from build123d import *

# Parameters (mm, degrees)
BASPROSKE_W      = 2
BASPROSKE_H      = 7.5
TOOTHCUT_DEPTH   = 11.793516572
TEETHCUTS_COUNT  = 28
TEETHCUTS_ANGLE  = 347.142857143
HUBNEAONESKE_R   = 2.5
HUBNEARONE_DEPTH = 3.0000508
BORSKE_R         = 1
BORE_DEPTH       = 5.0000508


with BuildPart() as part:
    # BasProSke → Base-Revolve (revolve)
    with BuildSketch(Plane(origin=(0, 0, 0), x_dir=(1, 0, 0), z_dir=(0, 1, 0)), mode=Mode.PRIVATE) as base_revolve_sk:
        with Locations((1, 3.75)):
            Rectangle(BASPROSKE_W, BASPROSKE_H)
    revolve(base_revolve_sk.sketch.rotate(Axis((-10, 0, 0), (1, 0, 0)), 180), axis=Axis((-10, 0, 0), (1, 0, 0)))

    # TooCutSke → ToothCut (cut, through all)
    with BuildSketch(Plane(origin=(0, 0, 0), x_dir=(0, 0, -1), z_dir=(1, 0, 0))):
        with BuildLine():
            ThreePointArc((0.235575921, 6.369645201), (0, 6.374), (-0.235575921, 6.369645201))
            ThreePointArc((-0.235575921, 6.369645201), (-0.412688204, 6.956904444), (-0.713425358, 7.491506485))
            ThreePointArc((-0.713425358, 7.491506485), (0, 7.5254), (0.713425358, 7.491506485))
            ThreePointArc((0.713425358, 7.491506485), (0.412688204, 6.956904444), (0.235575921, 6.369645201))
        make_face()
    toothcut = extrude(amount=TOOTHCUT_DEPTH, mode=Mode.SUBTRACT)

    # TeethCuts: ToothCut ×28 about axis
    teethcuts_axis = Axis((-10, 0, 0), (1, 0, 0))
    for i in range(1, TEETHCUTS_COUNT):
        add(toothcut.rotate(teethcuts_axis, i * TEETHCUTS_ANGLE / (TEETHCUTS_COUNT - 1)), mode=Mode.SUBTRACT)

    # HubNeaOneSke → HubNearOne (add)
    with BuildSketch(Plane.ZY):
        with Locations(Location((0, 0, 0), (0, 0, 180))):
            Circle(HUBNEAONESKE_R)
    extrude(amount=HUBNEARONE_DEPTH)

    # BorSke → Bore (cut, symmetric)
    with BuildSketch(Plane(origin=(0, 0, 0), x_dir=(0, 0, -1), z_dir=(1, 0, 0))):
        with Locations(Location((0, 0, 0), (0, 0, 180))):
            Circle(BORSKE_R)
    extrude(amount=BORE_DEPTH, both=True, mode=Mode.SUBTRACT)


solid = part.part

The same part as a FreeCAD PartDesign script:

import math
import FreeCAD as App
import Part
import Sketcher
Q = App.Units.Quantity


def add_polygon(sketch, points):
    """Adds a closed chain of lines whose ends are joined by coincident constraints."""
    first, n = sketch.GeometryCount, len(points)
    for a, b in zip(points, points[1:] + points[:1]):
        sketch.addGeometry(Part.LineSegment(App.Vector(*a, 0), App.Vector(*b, 0)), False)
    for i in range(n):
        sketch.addConstraint(Sketcher.Constraint("Coincident", first + i, 2, first + (i + 1) % n, 1))

doc = App.newDocument("Part")
params = doc.addObject("Spreadsheet::Sheet", "Params")
for row, (alias, value) in enumerate([
    ("sketch1_width", "2 mm"),
    ("sketch1_height", "7.5 mm"),
    ("revolution_angle", "360 deg"),
    ("sketch2_radius", "2.8 mm"),
    ("sketch3_diameter", "5 mm"),
    ("pad1_length", "3.000051 mm"),
    ("sketch4_diameter", "2 mm"),
    ("pocket2_length", "10.000102 mm"),
], start=1):
    params.set(f"A{row}", alias)
    params.set(f"B{row}", "=" + value)
    params.setAlias(f"B{row}", alias)

body = doc.addObject("PartDesign::Body", "Body")

# Sketch on XZ plane
sketch1 = body.newObject("Sketcher::SketchObject", "Sketch")
sketch1.AttachmentSupport = (doc.getObject("XZ_Plane"), [""])
sketch1.MapMode = "FlatFace"
add_polygon(sketch1, [(0, -7.5), (0, 0), (2, 0), (2, -7.5)])  # lines 0-3
sketch1.addConstraint([
    Sketcher.Constraint("Vertical", 0),
    Sketcher.Constraint("Horizontal", 1),
    Sketcher.Constraint("Vertical", 2),
    Sketcher.Constraint("Horizontal", 3),
    Sketcher.Constraint("Coincident", 0, 2, -1, 1),
    Sketcher.Constraint("DistanceX", 1, 1, 1, 2, Q("2 mm")),
    Sketcher.Constraint("DistanceY", 0, 1, 0, 2, Q("7.5 mm")),
])
sketch1.setExpression("Constraints[9]", "Params.sketch1_width")
sketch1.setExpression("Constraints[10]", "Params.sketch1_height")
revolution = body.newObject("PartDesign::Revolution", "Revolution")
revolution.Profile = sketch1
revolution.ReferenceAxis = (sketch1, ["H_Axis"])
revolution.setExpression("Angle", "Params.revolution_angle")

# Sketch on YZ plane
sketch2 = body.newObject("Sketcher::SketchObject", "Sketch001")
sketch2.AttachmentSupport = (doc.getObject("YZ_Plane"), [""])
sketch2.MapMode = "FlatFace"
sketch2.addGeometry([
    Part.ArcOfCircle(Part.Circle(App.Vector(0, 0, 0), App.Vector(0, 0, 1), 6.37), math.radians(-2.12), math.radians(2.12)),
    Part.ArcOfCircle(Part.Circle(App.Vector(5.86, -2.99, 0), App.Vector(0, 0, 1), 2.8), math.radians(54), math.radians(80)),
    Part.ArcOfCircle(Part.Circle(App.Vector(0, 0, 0), App.Vector(0, 0, 1), 7.53), math.radians(-5.44), math.radians(5.44)),
    Part.ArcOfCircle(Part.Circle(App.Vector(5.86, 2.99, 0), App.Vector(0, 0, 1), 2.8), math.radians(-80), math.radians(-54)),
], False)
sketch2.addConstraint([
    Sketcher.Constraint("Coincident", 0, 1, 1, 2),
    Sketcher.Constraint("Coincident", 1, 1, 2, 1),
    Sketcher.Constraint("Coincident", 2, 2, 3, 2),
    Sketcher.Constraint("Coincident", 3, 1, 0, 2),
    Sketcher.Constraint("Coincident", 0, 3, -1, 1),
    Sketcher.Constraint("Coincident", 2, 3, -1, 1),
    Sketcher.Constraint("Equal", 1, 3),
    Sketcher.Constraint("Symmetric", 1, 3, 3, 3, -1),
    Sketcher.Constraint("Radius", 1, Q("2.8 mm")),
    Sketcher.Constraint("Radius", 0, Q("6.374 mm")),
    Sketcher.Constraint("Radius", 2, Q("7.5254 mm")),
    Sketcher.Constraint("DistanceY", 0, 1, 2, 2, Q("0.949001 mm")),
    Sketcher.Constraint("DistanceY", 1, 3, -1, 1, Q("2.988739 mm")),
])
sketch2.setExpression("Constraints[8]", "Params.sketch2_radius")
pocket1 = body.newObject("PartDesign::Pocket", "Pocket")
pocket1.Profile = sketch2
pocket1.Type = "ThroughAll"
pocket1.Reversed = True
doc.recompute()

polarpattern = body.newObject("PartDesign::PolarPattern", "PolarPattern")
polarpattern.Originals = [pocket1]
polarpattern.Axis = (doc.getObject("X_Axis"), [""])
polarpattern.Angle = 360
polarpattern.Occurrences = 28
body.Tip = polarpattern

# Sketch on YZ plane
sketch3 = body.newObject("Sketcher::SketchObject", "Sketch002")
sketch3.AttachmentSupport = (doc.getObject("YZ_Plane"), [""])
sketch3.MapMode = "FlatFace"
sketch3.addGeometry(Part.Circle(App.Vector(0, 0, 0), App.Vector(0, 0, 1), 2.5), False)
sketch3.addConstraint([
    Sketcher.Constraint("Coincident", 0, 3, -1, 1),
    Sketcher.Constraint("Diameter", 0, Q("5 mm")),
])
sketch3.setExpression("Constraints[1]", "Params.sketch3_diameter")
pad1 = body.newObject("PartDesign::Pad", "Pad")
pad1.Profile = sketch3
pad1.setExpression("Length", "Params.pad1_length")
pad1.Reversed = True

# Sketch on YZ plane
sketch4 = body.newObject("Sketcher::SketchObject", "Sketch003")
sketch4.AttachmentSupport = (doc.getObject("YZ_Plane"), [""])
sketch4.MapMode = "FlatFace"
sketch4.addGeometry(Part.Circle(App.Vector(0, 0, 0), App.Vector(0, 0, 1), 1), False)
sketch4.addConstraint([
    Sketcher.Constraint("Coincident", 0, 3, -1, 1),
    Sketcher.Constraint("Diameter", 0, Q("2 mm")),
])
sketch4.setExpression("Constraints[1]", "Params.sketch4_diameter")
pocket2 = body.newObject("PartDesign::Pocket", "Pocket001")
pocket2.Profile = sketch4
pocket2.setExpression("Length", "Params.pocket2_length")
pocket2.Midplane = True

doc.recompute()
